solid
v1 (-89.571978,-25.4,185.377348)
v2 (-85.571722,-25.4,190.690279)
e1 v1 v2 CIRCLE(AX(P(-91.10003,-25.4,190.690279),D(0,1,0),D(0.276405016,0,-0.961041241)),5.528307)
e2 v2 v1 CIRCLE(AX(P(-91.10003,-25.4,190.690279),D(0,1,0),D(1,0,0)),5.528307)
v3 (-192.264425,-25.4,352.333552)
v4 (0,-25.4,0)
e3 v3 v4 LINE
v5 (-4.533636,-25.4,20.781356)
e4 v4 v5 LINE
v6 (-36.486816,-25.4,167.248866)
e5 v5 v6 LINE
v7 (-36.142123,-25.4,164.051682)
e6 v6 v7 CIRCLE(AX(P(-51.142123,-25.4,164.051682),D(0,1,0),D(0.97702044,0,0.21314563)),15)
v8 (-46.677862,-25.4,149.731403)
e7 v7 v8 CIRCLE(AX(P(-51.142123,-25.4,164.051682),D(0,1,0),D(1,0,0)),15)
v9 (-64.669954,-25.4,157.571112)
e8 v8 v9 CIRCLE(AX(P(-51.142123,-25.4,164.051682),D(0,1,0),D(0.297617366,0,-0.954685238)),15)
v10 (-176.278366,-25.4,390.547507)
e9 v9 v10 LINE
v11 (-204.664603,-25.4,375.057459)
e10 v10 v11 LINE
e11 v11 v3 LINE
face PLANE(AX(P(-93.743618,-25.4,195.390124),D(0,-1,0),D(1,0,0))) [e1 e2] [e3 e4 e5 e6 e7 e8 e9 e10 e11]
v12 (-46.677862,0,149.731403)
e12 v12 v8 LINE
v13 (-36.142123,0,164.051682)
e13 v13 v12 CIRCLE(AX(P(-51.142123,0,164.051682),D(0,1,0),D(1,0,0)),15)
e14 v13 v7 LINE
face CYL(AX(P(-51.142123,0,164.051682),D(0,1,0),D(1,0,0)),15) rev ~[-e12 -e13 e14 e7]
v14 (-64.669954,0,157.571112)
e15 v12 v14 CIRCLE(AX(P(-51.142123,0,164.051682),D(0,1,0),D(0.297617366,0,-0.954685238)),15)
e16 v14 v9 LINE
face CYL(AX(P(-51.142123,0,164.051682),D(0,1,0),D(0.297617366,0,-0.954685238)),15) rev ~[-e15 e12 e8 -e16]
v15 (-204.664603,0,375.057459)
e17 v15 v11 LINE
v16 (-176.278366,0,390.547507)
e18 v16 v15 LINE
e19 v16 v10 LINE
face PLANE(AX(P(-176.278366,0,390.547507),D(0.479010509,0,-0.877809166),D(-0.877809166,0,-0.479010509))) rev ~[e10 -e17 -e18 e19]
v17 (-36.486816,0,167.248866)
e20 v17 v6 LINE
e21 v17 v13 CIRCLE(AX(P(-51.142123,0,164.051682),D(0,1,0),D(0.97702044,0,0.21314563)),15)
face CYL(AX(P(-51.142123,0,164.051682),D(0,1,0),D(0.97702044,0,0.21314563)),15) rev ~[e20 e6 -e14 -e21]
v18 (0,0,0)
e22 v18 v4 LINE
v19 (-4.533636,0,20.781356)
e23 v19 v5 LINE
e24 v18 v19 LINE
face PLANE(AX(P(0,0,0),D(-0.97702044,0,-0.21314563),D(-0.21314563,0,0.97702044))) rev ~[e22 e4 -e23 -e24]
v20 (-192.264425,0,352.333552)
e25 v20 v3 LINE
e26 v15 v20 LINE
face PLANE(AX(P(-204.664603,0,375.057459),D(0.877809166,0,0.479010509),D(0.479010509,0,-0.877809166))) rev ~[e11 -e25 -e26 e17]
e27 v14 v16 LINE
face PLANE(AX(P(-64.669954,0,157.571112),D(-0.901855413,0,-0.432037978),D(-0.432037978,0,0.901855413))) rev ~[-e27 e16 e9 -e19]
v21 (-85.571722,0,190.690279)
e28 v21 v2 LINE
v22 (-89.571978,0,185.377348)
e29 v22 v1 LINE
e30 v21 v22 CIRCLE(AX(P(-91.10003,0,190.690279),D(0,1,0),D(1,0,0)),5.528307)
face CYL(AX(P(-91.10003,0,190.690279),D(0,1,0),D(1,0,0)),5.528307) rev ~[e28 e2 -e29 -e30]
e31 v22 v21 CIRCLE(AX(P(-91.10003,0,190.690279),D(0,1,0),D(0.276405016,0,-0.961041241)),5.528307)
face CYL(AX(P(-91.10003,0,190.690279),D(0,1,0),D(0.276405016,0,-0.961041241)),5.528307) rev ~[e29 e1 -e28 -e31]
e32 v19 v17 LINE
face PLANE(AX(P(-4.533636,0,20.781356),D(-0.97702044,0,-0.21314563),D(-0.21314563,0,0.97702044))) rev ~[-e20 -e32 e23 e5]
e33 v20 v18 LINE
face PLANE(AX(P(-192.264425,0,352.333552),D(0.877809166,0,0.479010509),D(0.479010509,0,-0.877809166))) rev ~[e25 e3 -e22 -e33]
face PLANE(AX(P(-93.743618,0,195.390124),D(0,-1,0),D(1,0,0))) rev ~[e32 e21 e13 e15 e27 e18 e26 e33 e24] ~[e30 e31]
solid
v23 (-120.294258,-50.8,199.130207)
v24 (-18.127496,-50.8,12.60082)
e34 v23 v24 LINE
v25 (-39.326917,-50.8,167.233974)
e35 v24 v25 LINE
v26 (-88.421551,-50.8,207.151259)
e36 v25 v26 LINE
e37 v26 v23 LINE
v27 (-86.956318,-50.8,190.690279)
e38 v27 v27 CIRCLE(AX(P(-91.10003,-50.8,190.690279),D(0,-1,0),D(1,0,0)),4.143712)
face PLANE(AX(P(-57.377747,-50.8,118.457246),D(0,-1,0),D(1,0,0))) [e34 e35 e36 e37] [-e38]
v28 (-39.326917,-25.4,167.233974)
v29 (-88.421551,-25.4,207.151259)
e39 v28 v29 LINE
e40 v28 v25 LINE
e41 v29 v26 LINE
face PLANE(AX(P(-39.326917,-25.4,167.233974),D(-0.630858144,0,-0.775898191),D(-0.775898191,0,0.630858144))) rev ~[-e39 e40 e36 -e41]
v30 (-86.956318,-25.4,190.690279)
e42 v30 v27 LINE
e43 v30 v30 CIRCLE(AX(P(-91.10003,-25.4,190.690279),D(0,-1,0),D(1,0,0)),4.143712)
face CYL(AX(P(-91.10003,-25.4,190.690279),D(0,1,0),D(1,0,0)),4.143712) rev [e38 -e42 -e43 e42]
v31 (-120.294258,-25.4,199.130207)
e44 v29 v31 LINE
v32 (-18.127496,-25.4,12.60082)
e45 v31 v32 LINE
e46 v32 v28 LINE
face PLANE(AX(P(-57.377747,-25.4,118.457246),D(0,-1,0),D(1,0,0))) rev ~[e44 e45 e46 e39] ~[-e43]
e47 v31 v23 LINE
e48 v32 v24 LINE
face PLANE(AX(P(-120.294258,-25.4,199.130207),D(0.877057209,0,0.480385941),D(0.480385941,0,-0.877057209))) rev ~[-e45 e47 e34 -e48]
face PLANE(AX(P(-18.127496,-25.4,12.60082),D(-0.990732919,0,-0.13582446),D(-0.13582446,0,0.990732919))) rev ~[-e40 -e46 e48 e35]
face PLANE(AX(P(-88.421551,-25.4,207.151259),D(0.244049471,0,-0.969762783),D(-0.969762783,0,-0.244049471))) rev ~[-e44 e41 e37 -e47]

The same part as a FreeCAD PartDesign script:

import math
import FreeCAD as App
import Part
import Sketcher

doc = App.newDocument("Part")
body = doc.addObject("PartDesign::Body", "Body")

sketch1 = doc.addObject("Sketcher::SketchObject", "Sketch")
body.addObject(sketch1)
sketch1.AttachmentSupport = (doc.XZ_Plane, [""])
sketch1.MapMode = "FlatFace"
sketch1.addGeometry([
    Part.LineSegment(App.Vector(-4.5, 20.8, 0), App.Vector(-36.5, 167.2, 0)),
    Part.ArcOfCircle(Part.Circle(App.Vector(-51.1, 164.1, 0), App.Vector(0, 0, 1), 15), math.radians(0), math.radians(12.31)),
    Part.ArcOfCircle(Part.Circle(App.Vector(-51.1, 164.1, 0), App.Vector(0, 0, 1), 15), math.radians(-73), math.radians(0)),
    Part.ArcOfCircle(Part.Circle(App.Vector(-51.1, 164.1, 0), App.Vector(0, 0, 1), 15), math.radians(-154), math.radians(-73)),
    Part.LineSegment(App.Vector(-64.7, 157.6, 0), App.Vector(-176.3, 390.5, 0)),
    Part.LineSegment(App.Vector(-176.3, 390.5, 0), App.Vector(-204.7, 375.1, 0)),
    Part.LineSegment(App.Vector(-204.7, 375.1, 0), App.Vector(-192.3, 352.3, 0)),
    Part.LineSegment(App.Vector(-192.3, 352.3, 0), App.Vector(0, 0, 0)),
    Part.LineSegment(App.Vector(0, 0, 0), App.Vector(-4.5, 20.8, 0)),
    Part.ArcOfCircle(Part.Circle(App.Vector(-91.1, 190.7, 0), App.Vector(0, 0, 1), 5.5), math.radians(0), math.radians(286)),
    Part.ArcOfCircle(Part.Circle(App.Vector(-91.1, 190.7, 0), App.Vector(0, 0, 1), 5.5), math.radians(-74), math.radians(0)),
], False)
sketch1.addConstraint([
    Sketcher.Constraint("Tangent", 0, 2, 1, 2),
    Sketcher.Constraint("Tangent", 1, 1, 2, 2),
    Sketcher.Constraint("Tangent", 2, 1, 3, 2),
    Sketcher.Constraint("Tangent", 3, 1, 4, 1),
    Sketcher.Constraint("Coincident", 4, 2, 5, 1),
    Sketcher.Constraint("Coincident", 5, 2, 6, 1),
    Sketcher.Constraint("Coincident", 6, 2, 7, 1),
    Sketcher.Constraint("Coincident", 7, 2, 8, 1),
    Sketcher.Constraint("Coincident", 8, 2, 0, 1),
    Sketcher.Constraint("Tangent", 9, 1, 10, 2),
    Sketcher.Constraint("Coincident", 10, 1, 9, 2),
    Sketcher.Constraint("Coincident", 7, 2, -1, 1),
    Sketcher.Constraint("Coincident", 3, 3, 1, 3),
    Sketcher.Constraint("Perpendicular", 5, 6),
    Sketcher.Constraint("Parallel", 6, 7),
    Sketcher.Constraint("Parallel", 0, 8),
    Sketcher.Constraint("Horizontal", 3, 3, 1, 1),
    Sketcher.Constraint("Horizontal", 10, 3, 9, 1),
    Sketcher.Constraint("Radius", 1, 15.0),
    Sketcher.Constraint("Radius", 9, 5.528307),
    Sketcher.Constraint("Distance", 7, 401.378301),
    Sketcher.Constraint("DistanceX", 9, 1, 3, 3, 34.4296),
    Sketcher.Constraint("Distance", 0, 149.912432),
    Sketcher.Constraint("Distance", 6, 25.887069),
    Sketcher.Constraint("DistanceY", -1, 1, 1, 3, 164.051682),
    Sketcher.Constraint("DistanceX", 9, 3, -1, 1, 91.10003),
    Sketcher.Constraint("DistanceY", -1, 1, 9, 3, 190.690279),
    Sketcher.Constraint("DistanceY", -1, 1, 5, 2, 375.057459),
    Sketcher.Constraint("DistanceX", 1, 3, 2, 1, 4.46426),
    Sketcher.Constraint("DistanceX", 3, 1, 3, 3, 13.527831),
    Sketcher.Constraint("DistanceX", 9, 3, 10, 1, 1.528052),
])
pad1 = doc.addObject("PartDesign::Pad", "Pad")
body.addObject(pad1)
pad1.Profile = sketch1
pad1.Length = 25.4
body2 = doc.addObject("PartDesign::Body", "Body001")

sketch2 = doc.addObject("Sketcher::SketchObject", "Sketch001")
body2.addObject(sketch2)
sketch2.AttachmentSupport = (doc.getObject("XZ_Plane001"), [""])
sketch2.MapMode = "FlatFace"
sketch2.AttachmentOffset = App.Placement(App.Vector(0, 0, 25.4), App.Rotation())
sketch2.addGeometry([
    Part.LineSegment(App.Vector(-120.3, 199.1, 0), App.Vector(-18.1, 12.6, 0)),
    Part.LineSegment(App.Vector(-18.1, 12.6, 0), App.Vector(-39.3, 167.2, 0)),
    Part.LineSegment(App.Vector(-39.3, 167.2, 0), App.Vector(-88.4, 207.2, 0)),
    Part.LineSegment(App.Vector(-88.4, 207.2, 0), App.Vector(-120.3, 199.1, 0)),
    Part.Circle(App.Vector(-91.1, 190.7, 0), App.Vector(0, 0, 1), 4.1),
], False)
sketch2.addConstraint([
    Sketcher.Constraint("Coincident", 0, 2, 1, 1),
    Sketcher.Constraint("Coincident", 1, 2, 2, 1),
    Sketcher.Constraint("Coincident", 2, 2, 3, 1),
    Sketcher.Constraint("Coincident", 3, 2, 0, 1),
    Sketcher.Constraint("Diameter", 4, 8.287424),
    Sketcher.Constraint("Distance", 3, 32.866499),
    Sketcher.Constraint("Distance", 0, 212.67642),
    Sketcher.Constraint("Distance", 2, 63.274582),
    Sketcher.Constraint("DistanceX", 4, 3, -1, 1, 91.10003),
    Sketcher.Constraint("DistanceY", -1, 1, 4, 3, 190.690279),
    Sketcher.Constraint("DistanceY", -1, 1, 0, 2, 12.60082),
    Sketcher.Constraint("DistanceX", 2, 2, -1, 1, 88.421551),
    Sketcher.Constraint("DistanceY", -1, 1, 2, 2, 207.151259),
    Sketcher.Constraint("DistanceX", 1, 2, 0, 2, 21.199421),
    Sketcher.Constraint("DistanceX", 3, 2, 4, 3, 29.194228),
])
pad2 = doc.addObject("PartDesign::Pad", "Pad001")
body2.addObject(pad2)
pad2.Profile = sketch2
pad2.Length = 25.4

doc.recompute()
